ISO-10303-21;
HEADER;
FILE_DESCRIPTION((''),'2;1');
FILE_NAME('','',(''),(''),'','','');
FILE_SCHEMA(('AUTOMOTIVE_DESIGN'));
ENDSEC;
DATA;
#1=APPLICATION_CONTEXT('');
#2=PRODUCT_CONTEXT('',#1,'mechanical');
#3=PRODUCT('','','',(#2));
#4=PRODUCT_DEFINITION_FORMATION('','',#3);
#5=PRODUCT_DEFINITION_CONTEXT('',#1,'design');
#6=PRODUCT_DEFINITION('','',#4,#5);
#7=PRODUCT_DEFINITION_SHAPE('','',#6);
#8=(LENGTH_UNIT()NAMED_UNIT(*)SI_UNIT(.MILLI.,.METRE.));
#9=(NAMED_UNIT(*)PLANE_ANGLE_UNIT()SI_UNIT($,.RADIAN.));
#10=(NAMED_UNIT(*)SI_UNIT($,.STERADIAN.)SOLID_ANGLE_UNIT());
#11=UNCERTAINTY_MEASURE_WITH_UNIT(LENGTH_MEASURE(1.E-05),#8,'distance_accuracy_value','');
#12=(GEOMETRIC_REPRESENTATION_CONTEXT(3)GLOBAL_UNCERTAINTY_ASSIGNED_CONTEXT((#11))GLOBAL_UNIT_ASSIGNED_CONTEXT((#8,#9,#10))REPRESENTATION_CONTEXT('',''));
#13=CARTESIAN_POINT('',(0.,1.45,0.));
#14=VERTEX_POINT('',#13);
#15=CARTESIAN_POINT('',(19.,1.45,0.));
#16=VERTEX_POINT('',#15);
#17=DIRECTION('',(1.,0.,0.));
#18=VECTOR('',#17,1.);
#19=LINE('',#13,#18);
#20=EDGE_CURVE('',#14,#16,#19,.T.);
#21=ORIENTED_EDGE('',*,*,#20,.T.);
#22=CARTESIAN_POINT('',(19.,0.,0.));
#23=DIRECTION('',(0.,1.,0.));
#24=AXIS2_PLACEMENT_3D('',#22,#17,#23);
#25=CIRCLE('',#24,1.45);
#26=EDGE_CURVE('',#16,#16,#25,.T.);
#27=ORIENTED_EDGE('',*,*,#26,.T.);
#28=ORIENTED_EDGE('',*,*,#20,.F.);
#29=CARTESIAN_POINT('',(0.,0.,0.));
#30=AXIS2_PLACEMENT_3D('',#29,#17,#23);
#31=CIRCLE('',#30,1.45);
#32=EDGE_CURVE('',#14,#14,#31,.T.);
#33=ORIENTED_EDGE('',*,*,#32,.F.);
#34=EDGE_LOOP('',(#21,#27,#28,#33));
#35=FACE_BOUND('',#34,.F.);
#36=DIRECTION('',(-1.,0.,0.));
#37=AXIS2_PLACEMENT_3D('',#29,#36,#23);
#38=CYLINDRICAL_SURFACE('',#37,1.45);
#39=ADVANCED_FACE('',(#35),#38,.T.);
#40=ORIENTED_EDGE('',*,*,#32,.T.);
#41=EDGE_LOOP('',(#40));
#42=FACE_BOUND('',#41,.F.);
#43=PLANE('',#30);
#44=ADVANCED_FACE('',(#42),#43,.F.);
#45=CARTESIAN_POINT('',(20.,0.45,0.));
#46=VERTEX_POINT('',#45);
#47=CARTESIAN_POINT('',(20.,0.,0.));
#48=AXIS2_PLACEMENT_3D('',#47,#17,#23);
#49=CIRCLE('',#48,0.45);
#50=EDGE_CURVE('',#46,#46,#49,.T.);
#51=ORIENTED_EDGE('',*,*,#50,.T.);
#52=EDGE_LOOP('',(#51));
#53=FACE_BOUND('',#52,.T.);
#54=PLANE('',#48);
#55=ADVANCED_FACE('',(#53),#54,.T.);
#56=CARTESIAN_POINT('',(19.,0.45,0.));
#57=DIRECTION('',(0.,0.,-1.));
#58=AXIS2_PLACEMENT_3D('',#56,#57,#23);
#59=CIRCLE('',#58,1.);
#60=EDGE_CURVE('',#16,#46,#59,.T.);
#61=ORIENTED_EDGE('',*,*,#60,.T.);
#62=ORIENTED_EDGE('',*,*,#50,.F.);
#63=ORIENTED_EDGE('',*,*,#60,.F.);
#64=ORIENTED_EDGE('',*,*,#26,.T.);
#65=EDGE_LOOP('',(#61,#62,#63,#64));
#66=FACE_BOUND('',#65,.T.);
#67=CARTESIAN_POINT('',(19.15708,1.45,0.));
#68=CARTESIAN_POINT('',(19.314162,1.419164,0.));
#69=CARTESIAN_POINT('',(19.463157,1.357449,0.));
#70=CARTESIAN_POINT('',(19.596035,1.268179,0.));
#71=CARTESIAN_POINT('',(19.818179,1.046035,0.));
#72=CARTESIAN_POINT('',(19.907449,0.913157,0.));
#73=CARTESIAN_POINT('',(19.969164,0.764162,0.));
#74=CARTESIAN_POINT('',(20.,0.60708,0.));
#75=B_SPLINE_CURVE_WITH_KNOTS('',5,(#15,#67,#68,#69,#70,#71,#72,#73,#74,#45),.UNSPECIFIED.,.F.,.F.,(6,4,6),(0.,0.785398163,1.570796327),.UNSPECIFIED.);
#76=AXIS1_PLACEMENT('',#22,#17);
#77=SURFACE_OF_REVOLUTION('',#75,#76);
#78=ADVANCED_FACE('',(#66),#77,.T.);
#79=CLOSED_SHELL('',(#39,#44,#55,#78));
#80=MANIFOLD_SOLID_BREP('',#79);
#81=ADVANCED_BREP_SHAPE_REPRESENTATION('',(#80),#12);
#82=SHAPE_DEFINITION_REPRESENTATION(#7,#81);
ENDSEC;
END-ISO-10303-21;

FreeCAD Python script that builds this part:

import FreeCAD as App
import Part
import Sketcher
from FreeCAD import Vector
Q = App.Units.Quantity


def edges_at(feature, points):
    """Names of the edges that pass closest to the given points."""
    edges = feature.Shape.Edges
    near = lambda p: min(range(len(edges)), key=lambda i: edges[i].distToShape(Part.Vertex(*p))[0])
    return sorted({f"Edge{near(p) + 1}" for p in points})

doc = App.newDocument("Part")
body = doc.addObject("PartDesign::Body", "Body")

sketch1 = body.newObject("Sketcher::SketchObject", "Sketch")
sketch1.AttachmentSupport = (doc.getObject("YZ_Plane"), [""])
sketch1.MapMode = "FlatFace"
sketch1.addGeometry(Part.Circle(Vector(0, 0, 0), Vector(0, 0, 1), 1.4), False)
sketch1.addConstraint(Sketcher.Constraint("Coincident", 0, 3, -1, 1))
sketch1.addConstraint(Sketcher.Constraint("Diameter", 0, Q("2.9 mm")))
pad1 = body.newObject("PartDesign::Pad", "Pad")
pad1.Profile = sketch1
pad1.Length = 20
doc.recompute()

fillet = body.newObject("PartDesign::Fillet", "Fillet")
fillet.Base = (pad1, edges_at(pad1, [(20, -1.45, 0)]))
fillet.Radius = 1

doc.recompute()
